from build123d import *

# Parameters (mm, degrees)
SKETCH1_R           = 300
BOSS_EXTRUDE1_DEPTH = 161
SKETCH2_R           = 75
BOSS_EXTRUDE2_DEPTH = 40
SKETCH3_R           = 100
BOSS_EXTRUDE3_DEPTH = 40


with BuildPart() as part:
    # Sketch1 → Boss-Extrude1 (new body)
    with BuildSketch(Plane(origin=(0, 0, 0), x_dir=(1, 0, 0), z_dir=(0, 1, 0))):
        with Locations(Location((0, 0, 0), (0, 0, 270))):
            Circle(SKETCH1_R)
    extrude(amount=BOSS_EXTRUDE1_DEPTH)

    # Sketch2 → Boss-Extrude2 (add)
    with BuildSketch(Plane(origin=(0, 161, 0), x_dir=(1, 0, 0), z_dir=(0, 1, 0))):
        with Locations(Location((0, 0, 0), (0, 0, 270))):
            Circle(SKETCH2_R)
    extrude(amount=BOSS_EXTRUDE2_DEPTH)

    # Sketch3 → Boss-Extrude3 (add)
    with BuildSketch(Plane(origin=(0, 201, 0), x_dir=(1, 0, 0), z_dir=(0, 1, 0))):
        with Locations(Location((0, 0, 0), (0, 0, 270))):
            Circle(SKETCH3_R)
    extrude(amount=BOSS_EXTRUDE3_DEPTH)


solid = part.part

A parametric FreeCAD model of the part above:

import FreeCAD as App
import Part
import Sketcher

V = App.Vector
Q = App.Units.Quantity

doc = App.newDocument("Part")
params = doc.addObject("Spreadsheet::Sheet", "Params")
for row, (alias, value) in enumerate([
    ("sketch1_diameter", "600 mm"),
    ("pad1_length", "161 mm"),
    ("sketch2_diameter", "150 mm"),
    ("pad2_length", "40 mm"),
    ("sketch3_diameter", "200 mm"),
    ("pad3_length", "40 mm"),
], start=1):
    params.set(f"A{row}", alias)
    params.set(f"B{row}", "=" + value)
    params.setAlias(f"B{row}", alias)

body = doc.addObject("PartDesign::Body", "Body")

# Sketch on XZ plane
sketch1 = doc.addObject("Sketcher::SketchObject", "Sketch")
body.addObject(sketch1)
sketch1.AttachmentSupport = (doc.XZ_Plane, [""])
sketch1.MapMode = "FlatFace"
sketch1.addGeometry(Part.Circle(V(0, 0, 0), V(0, 0, 1), 300), False)
sketch1.addConstraint([
    Sketcher.Constraint("Coincident", 0, 3, -1, 1),
    Sketcher.Constraint("Diameter", 0, Q("600 mm")),
])
sketch1.setExpression("Constraints[1]", "Params.sketch1_diameter")
pad1 = doc.addObject("PartDesign::Pad", "Pad")
body.addObject(pad1)
pad1.Profile = sketch1
pad1.setExpression("Length", "Params.pad1_length")
pad1.Reversed = True

# Sketch on XZ plane
sketch2 = doc.addObject("Sketcher::SketchObject", "Sketch001")
body.addObject(sketch2)
sketch2.AttachmentSupport = (doc.XZ_Plane, [""])
sketch2.MapMode = "FlatFace"
sketch2.AttachmentOffset = App.Placement(V(0, 0, -161), App.Rotation())
sketch2.addGeometry(Part.Circle(V(0, 0, 0), V(0, 0, 1), 75), False)
sketch2.addConstraint([
    Sketcher.Constraint("Coincident", 0, 3, -1, 1),
    Sketcher.Constraint("Diameter", 0, Q("150 mm")),
])
sketch2.setExpression("Constraints[1]", "Params.sketch2_diameter")
pad2 = doc.addObject("PartDesign::Pad", "Pad001")
body.addObject(pad2)
pad2.Profile = sketch2
pad2.setExpression("Length", "Params.pad2_length")
pad2.Reversed = True

# Sketch on XZ plane
sketch3 = doc.addObject("Sketcher::SketchObject", "Sketch002")
body.addObject(sketch3)
sketch3.AttachmentSupport = (doc.XZ_Plane, [""])
sketch3.MapMode = "FlatFace"
sketch3.AttachmentOffset = App.Placement(V(0, 0, -201), App.Rotation())
sketch3.addGeometry(Part.Circle(V(0, 0, 0), V(0, 0, 1), 100), False)
sketch3.addConstraint([
    Sketcher.Constraint("Coincident", 0, 3, -1, 1),
    Sketcher.Constraint("Diameter", 0, Q("200 mm")),
])
sketch3.setExpression("Constraints[1]", "Params.sketch3_diameter")
pad3 = doc.addObject("PartDesign::Pad", "Pad002")
body.addObject(pad3)
pad3.Profile = sketch3
pad3.setExpression("Length", "Params.pad3_length")
pad3.Reversed = True

doc.recompute()
